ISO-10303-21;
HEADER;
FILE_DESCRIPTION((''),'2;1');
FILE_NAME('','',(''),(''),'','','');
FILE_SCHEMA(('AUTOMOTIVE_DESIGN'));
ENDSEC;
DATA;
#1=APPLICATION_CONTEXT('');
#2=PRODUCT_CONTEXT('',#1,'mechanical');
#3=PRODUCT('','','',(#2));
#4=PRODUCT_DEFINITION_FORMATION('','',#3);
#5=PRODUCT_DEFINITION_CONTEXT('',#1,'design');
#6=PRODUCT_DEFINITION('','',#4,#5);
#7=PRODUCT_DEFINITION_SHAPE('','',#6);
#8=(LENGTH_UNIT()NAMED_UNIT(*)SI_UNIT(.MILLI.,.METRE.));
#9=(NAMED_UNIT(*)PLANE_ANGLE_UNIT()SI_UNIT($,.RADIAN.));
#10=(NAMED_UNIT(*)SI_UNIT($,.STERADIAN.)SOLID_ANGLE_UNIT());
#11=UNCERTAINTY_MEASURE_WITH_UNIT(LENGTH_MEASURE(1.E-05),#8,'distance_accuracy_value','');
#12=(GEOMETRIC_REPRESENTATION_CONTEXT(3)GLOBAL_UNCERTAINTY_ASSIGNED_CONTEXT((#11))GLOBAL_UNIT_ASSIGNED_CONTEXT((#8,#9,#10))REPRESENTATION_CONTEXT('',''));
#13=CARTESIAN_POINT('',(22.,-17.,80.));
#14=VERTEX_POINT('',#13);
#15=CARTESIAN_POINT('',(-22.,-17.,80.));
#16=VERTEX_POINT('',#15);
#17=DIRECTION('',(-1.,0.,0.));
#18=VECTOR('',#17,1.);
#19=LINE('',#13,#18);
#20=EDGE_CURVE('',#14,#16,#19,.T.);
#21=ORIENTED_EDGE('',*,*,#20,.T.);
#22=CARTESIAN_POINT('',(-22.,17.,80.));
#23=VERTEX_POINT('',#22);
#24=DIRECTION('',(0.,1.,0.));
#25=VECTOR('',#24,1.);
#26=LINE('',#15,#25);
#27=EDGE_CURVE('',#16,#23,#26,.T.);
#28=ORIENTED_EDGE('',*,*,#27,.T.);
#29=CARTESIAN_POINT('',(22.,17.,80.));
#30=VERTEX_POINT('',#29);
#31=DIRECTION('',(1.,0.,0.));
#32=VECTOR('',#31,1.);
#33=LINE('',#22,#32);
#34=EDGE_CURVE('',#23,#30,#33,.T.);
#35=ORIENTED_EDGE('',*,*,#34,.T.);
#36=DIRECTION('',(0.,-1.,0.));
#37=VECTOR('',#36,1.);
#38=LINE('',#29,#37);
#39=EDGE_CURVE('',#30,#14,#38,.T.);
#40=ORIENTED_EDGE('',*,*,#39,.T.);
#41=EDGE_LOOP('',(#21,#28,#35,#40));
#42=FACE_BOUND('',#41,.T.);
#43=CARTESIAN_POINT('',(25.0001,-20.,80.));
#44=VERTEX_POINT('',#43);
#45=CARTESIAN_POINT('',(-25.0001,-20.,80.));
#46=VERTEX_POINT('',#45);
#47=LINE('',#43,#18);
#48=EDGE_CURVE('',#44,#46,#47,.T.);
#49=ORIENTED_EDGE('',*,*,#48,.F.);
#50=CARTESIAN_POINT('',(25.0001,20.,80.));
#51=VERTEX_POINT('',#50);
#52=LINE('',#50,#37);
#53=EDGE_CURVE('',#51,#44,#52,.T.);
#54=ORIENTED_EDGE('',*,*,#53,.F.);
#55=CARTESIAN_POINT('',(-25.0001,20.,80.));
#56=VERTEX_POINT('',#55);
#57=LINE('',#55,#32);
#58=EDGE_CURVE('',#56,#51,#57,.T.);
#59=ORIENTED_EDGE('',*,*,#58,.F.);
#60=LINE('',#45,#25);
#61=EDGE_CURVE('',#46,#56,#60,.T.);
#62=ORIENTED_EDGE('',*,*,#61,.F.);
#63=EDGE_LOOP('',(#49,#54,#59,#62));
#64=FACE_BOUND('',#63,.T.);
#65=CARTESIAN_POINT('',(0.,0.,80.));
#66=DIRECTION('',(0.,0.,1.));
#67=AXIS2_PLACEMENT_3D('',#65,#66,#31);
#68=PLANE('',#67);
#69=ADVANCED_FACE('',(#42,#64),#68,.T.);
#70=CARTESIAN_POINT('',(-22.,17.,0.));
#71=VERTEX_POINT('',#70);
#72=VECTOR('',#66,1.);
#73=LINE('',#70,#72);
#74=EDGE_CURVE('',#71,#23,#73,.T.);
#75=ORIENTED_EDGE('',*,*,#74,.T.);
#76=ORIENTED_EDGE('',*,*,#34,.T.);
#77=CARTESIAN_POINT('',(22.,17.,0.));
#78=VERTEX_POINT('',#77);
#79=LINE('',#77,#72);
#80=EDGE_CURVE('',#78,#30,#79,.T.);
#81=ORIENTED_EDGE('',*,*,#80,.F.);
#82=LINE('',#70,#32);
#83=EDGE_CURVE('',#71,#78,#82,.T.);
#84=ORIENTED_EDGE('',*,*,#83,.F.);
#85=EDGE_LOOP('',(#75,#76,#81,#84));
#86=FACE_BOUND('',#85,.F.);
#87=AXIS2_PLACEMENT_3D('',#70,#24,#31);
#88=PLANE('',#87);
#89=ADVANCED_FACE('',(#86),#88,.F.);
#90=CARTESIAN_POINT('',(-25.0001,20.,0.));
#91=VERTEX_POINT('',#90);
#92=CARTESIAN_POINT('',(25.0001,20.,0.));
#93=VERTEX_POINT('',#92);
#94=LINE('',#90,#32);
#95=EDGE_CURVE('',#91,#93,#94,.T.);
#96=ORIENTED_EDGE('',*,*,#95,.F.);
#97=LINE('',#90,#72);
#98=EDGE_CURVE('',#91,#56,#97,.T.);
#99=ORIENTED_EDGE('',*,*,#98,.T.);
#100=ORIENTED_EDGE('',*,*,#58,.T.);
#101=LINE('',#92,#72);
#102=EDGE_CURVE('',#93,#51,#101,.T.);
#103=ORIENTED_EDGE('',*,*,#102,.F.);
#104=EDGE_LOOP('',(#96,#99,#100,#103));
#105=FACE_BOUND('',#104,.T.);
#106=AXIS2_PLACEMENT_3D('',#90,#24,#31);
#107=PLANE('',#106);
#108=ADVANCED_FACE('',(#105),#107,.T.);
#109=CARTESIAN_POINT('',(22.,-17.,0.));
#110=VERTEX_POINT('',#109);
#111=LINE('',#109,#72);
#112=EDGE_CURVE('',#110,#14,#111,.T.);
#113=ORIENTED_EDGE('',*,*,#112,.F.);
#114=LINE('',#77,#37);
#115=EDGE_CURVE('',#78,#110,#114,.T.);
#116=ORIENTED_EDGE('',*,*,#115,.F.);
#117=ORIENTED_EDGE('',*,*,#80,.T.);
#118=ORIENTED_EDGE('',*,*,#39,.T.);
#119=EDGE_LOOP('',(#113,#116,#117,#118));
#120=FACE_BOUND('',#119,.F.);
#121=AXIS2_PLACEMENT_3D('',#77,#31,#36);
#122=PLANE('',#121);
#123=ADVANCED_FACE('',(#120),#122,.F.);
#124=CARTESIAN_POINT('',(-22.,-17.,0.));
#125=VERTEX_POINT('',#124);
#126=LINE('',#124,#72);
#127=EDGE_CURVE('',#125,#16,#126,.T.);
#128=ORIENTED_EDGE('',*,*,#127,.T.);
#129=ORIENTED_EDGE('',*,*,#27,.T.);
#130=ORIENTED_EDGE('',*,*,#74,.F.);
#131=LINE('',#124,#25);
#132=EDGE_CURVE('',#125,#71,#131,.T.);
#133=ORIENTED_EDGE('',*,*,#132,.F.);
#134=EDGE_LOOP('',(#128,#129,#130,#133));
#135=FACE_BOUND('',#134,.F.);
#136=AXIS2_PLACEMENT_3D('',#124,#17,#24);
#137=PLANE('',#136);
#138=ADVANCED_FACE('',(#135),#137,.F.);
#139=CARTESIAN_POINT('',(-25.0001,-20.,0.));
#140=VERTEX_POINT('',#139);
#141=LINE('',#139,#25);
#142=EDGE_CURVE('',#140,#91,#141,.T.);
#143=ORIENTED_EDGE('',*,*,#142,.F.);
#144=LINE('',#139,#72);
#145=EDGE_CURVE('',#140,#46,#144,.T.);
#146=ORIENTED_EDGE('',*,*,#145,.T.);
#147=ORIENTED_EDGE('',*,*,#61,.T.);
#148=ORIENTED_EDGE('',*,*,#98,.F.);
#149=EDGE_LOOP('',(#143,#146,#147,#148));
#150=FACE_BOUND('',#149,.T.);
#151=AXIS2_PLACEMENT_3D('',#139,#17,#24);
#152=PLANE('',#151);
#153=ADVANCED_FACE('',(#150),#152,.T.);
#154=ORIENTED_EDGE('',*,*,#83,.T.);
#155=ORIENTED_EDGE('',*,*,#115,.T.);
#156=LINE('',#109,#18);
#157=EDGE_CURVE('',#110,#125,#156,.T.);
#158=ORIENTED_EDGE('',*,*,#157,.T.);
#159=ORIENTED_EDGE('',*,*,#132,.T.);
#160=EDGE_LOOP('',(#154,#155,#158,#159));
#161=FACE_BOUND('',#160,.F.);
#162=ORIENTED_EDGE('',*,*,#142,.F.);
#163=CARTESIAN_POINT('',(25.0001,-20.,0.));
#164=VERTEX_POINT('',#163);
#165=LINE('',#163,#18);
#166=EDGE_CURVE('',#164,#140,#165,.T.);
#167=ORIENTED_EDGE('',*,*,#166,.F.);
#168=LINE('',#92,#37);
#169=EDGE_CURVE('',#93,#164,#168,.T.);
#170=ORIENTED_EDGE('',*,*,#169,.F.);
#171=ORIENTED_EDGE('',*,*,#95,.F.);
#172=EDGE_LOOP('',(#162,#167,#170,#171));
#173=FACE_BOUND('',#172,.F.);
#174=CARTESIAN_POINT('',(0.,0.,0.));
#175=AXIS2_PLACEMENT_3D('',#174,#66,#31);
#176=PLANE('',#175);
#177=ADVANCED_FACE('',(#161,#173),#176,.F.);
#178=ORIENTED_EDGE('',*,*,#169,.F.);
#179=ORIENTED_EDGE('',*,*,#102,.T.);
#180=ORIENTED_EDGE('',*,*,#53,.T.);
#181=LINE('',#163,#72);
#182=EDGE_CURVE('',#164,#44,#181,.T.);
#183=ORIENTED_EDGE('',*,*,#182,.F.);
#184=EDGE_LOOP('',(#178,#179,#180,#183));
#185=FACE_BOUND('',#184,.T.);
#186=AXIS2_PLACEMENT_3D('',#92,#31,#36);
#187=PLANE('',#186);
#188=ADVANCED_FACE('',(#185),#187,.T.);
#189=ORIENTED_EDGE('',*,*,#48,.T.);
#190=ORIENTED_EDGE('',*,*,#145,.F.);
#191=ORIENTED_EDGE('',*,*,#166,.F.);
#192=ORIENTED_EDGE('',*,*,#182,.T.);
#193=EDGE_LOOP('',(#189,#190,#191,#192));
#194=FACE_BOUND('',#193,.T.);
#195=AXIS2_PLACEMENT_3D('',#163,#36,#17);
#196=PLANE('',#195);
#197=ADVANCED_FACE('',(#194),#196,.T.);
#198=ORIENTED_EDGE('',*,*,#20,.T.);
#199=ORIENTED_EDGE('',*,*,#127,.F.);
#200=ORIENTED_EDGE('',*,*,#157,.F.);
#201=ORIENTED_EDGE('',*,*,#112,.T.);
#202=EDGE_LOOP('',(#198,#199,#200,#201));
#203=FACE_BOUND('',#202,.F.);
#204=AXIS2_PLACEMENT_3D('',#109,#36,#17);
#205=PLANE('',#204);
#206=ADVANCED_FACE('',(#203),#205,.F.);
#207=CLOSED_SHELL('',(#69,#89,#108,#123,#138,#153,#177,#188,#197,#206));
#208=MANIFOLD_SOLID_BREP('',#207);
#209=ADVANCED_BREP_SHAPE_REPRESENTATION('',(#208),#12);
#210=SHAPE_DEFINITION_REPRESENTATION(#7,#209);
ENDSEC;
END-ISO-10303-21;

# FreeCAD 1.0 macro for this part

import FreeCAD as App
import Part
import Sketcher

doc = App.newDocument("Part")
params = doc.addObject("Spreadsheet::Sheet", "Params")
for row, (alias, value) in enumerate([
    ("sketch1_width", "44 mm"),
    ("sketch1_height", "40 mm"),
    ("sketch1_height2", "34 mm"),
    ("pad1_length", "80 mm"),
], start=1):
    params.set(f"A{row}", alias)
    params.set(f"B{row}", "=" + value)
    params.setAlias(f"B{row}", alias)

body = doc.addObject("PartDesign::Body", "Body")

sketch1 = body.newObject("Sketcher::SketchObject", "Sketch")
sketch1.AttachmentSupport = (doc.getObject("XY_Plane"), [""])
sketch1.MapMode = "FlatFace"
sketch1.addGeometry([
    Part.LineSegment(App.Vector(-25, -20, 0), App.Vector(25, -20, 0)),
    Part.LineSegment(App.Vector(25, -20, 0), App.Vector(25, 20, 0)),
    Part.LineSegment(App.Vector(25, 20, 0), App.Vector(-25, 20, 0)),
    Part.LineSegment(App.Vector(-25, 20, 0), App.Vector(-25, -20, 0)),
    Part.LineSegment(App.Vector(22, 17, 0), App.Vector(22, -17, 0)),
    Part.LineSegment(App.Vector(22, -17, 0), App.Vector(-22, -17, 0)),
    Part.LineSegment(App.Vector(-22, -17, 0), App.Vector(-22, 17, 0)),
    Part.LineSegment(App.Vector(-22, 17, 0), App.Vector(22, 17, 0)),
], False)
sketch1.addConstraint([
    Sketcher.Constraint("Coincident", 0, 2, 1, 1),
    Sketcher.Constraint("Coincident", 1, 2, 2, 1),
    Sketcher.Constraint("Coincident", 2, 2, 3, 1),
    Sketcher.Constraint("Coincident", 3, 2, 0, 1),
    Sketcher.Constraint("Coincident", 4, 2, 5, 1),
    Sketcher.Constraint("Coincident", 5, 2, 6, 1),
    Sketcher.Constraint("Coincident", 6, 2, 7, 1),
    Sketcher.Constraint("Coincident", 7, 2, 4, 1),
    Sketcher.Constraint("Horizontal", 0),
    Sketcher.Constraint("Vertical", 1),
    Sketcher.Constraint("Horizontal", 2),
    Sketcher.Constraint("Vertical", 3),
    Sketcher.Constraint("Vertical", 4),
    Sketcher.Constraint("Horizontal", 5),
    Sketcher.Constraint("Vertical", 6),
    Sketcher.Constraint("Horizontal", 7),
    Sketcher.Constraint("Symmetric", 0, 2, 2, 2, -1, 1),
    Sketcher.Constraint("Symmetric", 4, 2, 6, 2, -1, 1),
    Sketcher.Constraint("DistanceX", 5, 2, 5, 1, 44.0),
    Sketcher.Constraint("DistanceY", 1, 1, 1, 2, 40.0),
    Sketcher.Constraint("DistanceY", 4, 2, 4, 1, 34.0),
    Sketcher.Constraint("DistanceX", -1, 1, 0, 2, 25.0),
])
sketch1.setExpression("Constraints[18]", "Params.sketch1_width")
sketch1.setExpression("Constraints[19]", "Params.sketch1_height")
sketch1.setExpression("Constraints[20]", "Params.sketch1_height2")
pad1 = body.newObject("PartDesign::Pad", "Pad")
pad1.Profile = sketch1
pad1.setExpression("Length", "Params.pad1_length")

doc.recompute()
